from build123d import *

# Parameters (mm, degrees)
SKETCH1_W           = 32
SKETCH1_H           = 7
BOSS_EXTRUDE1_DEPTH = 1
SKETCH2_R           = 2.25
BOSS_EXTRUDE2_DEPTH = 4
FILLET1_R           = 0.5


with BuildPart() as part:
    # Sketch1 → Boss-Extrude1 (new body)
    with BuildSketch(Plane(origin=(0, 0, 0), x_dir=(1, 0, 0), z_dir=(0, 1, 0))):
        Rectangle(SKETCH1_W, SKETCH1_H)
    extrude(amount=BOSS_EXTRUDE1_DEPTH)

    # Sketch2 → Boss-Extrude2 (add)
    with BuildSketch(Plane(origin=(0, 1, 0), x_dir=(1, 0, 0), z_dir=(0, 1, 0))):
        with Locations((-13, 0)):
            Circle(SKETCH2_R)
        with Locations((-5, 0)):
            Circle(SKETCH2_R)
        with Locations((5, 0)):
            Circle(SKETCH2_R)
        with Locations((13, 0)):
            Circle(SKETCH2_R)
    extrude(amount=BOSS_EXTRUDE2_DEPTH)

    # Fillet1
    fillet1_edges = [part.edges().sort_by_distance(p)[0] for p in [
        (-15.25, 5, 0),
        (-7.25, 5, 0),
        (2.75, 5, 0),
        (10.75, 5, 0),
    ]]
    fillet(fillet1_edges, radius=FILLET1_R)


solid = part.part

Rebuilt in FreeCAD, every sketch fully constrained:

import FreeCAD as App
import Part
import Sketcher
from FreeCAD import Vector


def edges_at(feature, points):
    """Names of the edges that pass closest to the given points."""
    edges = feature.Shape.Edges
    near = lambda p: min(range(len(edges)), key=lambda i: edges[i].distToShape(Part.Vertex(*p))[0])
    return sorted({f"Edge{near(p) + 1}" for p in points})

doc = App.newDocument("Part")
body = doc.addObject("PartDesign::Body", "Body")

# Sketch on XZ plane
sketch1 = body.newObject("Sketcher::SketchObject", "Sketch")
sketch1.AttachmentSupport = (doc.getObject("XZ_Plane"), [""])
sketch1.MapMode = "FlatFace"
sketch1.addGeometry(Part.LineSegment(Vector(-16, -4, 0), Vector(-16, 4, 0)), False)
sketch1.addGeometry(Part.LineSegment(Vector(-16, 4, 0), Vector(16, 4, 0)), False)
sketch1.addGeometry(Part.LineSegment(Vector(16, 4, 0), Vector(16, -4, 0)), False)
sketch1.addGeometry(Part.LineSegment(Vector(16, -4, 0), Vector(-16, -4, 0)), False)
sketch1.addConstraint(Sketcher.Constraint("Coincident", 0, 2, 1, 1))
sketch1.addConstraint(Sketcher.Constraint("Coincident", 1, 2, 2, 1))
sketch1.addConstraint(Sketcher.Constraint("Coincident", 2, 2, 3, 1))
sketch1.addConstraint(Sketcher.Constraint("Coincident", 3, 2, 0, 1))
sketch1.addConstraint(Sketcher.Constraint("Vertical", 0))
sketch1.addConstraint(Sketcher.Constraint("Horizontal", 1))
sketch1.addConstraint(Sketcher.Constraint("Vertical", 2))
sketch1.addConstraint(Sketcher.Constraint("Horizontal", 3))
sketch1.addConstraint(Sketcher.Constraint("Symmetric", 0, 2, 2, 2, -1, 1))
sketch1.addConstraint(Sketcher.Constraint("DistanceX", 1, 1, 1, 2, 32.0))
sketch1.addConstraint(Sketcher.Constraint("DistanceY", 0, 1, 0, 2, 7.0))
pad1 = body.newObject("PartDesign::Pad", "Pad")
pad1.Profile = sketch1
pad1.Length = 1
pad1.Reversed = True

# Sketch on XZ plane
sketch2 = body.newObject("Sketcher::SketchObject", "Sketch001")
sketch2.AttachmentSupport = (doc.getObject("XZ_Plane"), [""])
sketch2.MapMode = "FlatFace"
sketch2.AttachmentOffset = App.Placement(Vector(0, 0, -1), App.Rotation())
sketch2.addGeometry(Part.Circle(Vector(-13, 0, 0), Vector(0, 0, 1), 2.2), False)
sketch2.addGeometry(Part.Circle(Vector(-5, 0, 0), Vector(0, 0, 1), 2.2), False)
sketch2.addGeometry(Part.Circle(Vector(5, 0, 0), Vector(0, 0, 1), 2.2), False)
sketch2.addGeometry(Part.Circle(Vector(13, 0, 0), Vector(0, 0, 1), 2.2), False)
sketch2.addConstraint(Sketcher.Constraint("Equal", 0, 1))
sketch2.addConstraint(Sketcher.Constraint("Equal", 1, 2))
sketch2.addConstraint(Sketcher.Constraint("Equal", 2, 3))
sketch2.addConstraint(Sketcher.Constraint("Symmetric", 1, 3, 2, 3, -1, 1))
sketch2.addConstraint(Sketcher.Constraint("Symmetric", 0, 3, 3, 3, -1, 1))
sketch2.addConstraint(Sketcher.Constraint("PointOnObject", 0, 3, -1))
sketch2.addConstraint(Sketcher.Constraint("PointOnObject", 1, 3, -1))
sketch2.addConstraint(Sketcher.Constraint("Diameter", 0, 4.5))
sketch2.addConstraint(Sketcher.Constraint("DistanceX", 0, 3, -1, 1, 13.0))
sketch2.addConstraint(Sketcher.Constraint("DistanceX", 1, 3, -1, 1, 5.0))
pad2 = body.newObject("PartDesign::Pad", "Pad001")
pad2.Profile = sketch2
pad2.Length = 4
pad2.Reversed = True
doc.recompute()

fillet = body.newObject("PartDesign::Fillet", "Fillet")
fillet.Base = (pad2, edges_at(pad2, [
    (-15.25, 5, 0),
    (-7.25, 5, 0),
    (2.75, 5, 0),
    (10.75, 5, 0),
]))
fillet.Radius = 0.5

doc.recompute()
